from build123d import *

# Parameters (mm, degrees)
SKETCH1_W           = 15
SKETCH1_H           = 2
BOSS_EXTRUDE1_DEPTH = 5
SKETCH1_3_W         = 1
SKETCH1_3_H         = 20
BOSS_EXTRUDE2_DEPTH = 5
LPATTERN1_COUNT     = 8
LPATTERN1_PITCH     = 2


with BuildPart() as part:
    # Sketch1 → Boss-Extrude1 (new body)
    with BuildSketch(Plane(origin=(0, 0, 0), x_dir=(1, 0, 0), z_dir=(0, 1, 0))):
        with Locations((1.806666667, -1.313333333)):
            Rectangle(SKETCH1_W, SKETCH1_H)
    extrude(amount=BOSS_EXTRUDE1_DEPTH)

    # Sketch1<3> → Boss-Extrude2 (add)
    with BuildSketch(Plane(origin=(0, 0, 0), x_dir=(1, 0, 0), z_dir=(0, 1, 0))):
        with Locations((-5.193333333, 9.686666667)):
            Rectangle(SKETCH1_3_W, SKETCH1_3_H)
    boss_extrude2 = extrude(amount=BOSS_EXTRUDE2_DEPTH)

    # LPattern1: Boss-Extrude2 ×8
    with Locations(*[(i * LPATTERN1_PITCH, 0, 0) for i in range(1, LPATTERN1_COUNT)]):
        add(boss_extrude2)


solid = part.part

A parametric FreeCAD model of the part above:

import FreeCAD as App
import Part
import Sketcher

V = App.Vector

doc = App.newDocument("Part")
body = doc.addObject("PartDesign::Body", "Body")

sketch1 = body.newObject("Sketcher::SketchObject", "Sketch")
sketch1.AttachmentSupport = (doc.getObject("XZ_Plane"), [""])
sketch1.MapMode = "FlatFace"
sketch1.addGeometry(Part.LineSegment(V(-5.7, 0.3, 0), V(-5.7, 2.3, 0)), False)
sketch1.addGeometry(Part.LineSegment(V(-5.7, 2.3, 0), V(9.3, 2.3, 0)), False)
sketch1.addGeometry(Part.LineSegment(V(9.3, 2.3, 0), V(9.3, 0.3, 0)), False)
sketch1.addGeometry(Part.LineSegment(V(9.3, 0.3, 0), V(-5.7, 0.3, 0)), False)
sketch1.addConstraint(Sketcher.Constraint("Coincident", 0, 2, 1, 1))
sketch1.addConstraint(Sketcher.Constraint("Coincident", 1, 2, 2, 1))
sketch1.addConstraint(Sketcher.Constraint("Coincident", 2, 2, 3, 1))
sketch1.addConstraint(Sketcher.Constraint("Coincident", 3, 2, 0, 1))
sketch1.addConstraint(Sketcher.Constraint("Vertical", 0))
sketch1.addConstraint(Sketcher.Constraint("Horizontal", 1))
sketch1.addConstraint(Sketcher.Constraint("Vertical", 2))
sketch1.addConstraint(Sketcher.Constraint("Horizontal", 3))
sketch1.addConstraint(Sketcher.Constraint("DistanceX", 1, 1, 1, 2, 15.0))
sketch1.addConstraint(Sketcher.Constraint("DistanceY", 0, 1, 0, 2, 2.0))
sketch1.addConstraint(Sketcher.Constraint("DistanceX", 0, 2, -1, 1, 5.693333))
sketch1.addConstraint(Sketcher.Constraint("DistanceY", -1, 1, 0, 2, 2.313333))
pad1 = body.newObject("PartDesign::Pad", "Pad")
pad1.Profile = sketch1
pad1.Length = 5
pad1.Reversed = True

sketch2 = body.newObject("Sketcher::SketchObject", "Sketch001")
sketch2.AttachmentSupport = (doc.getObject("XZ_Plane"), [""])
sketch2.MapMode = "FlatFace"
sketch2.addGeometry(Part.LineSegment(V(-5.7, -19.7, 0), V(-5.7, 0.3, 0)), False)
sketch2.addGeometry(Part.LineSegment(V(-5.7, 0.3, 0), V(-4.7, 0.3, 0)), False)
sketch2.addGeometry(Part.LineSegment(V(-4.7, 0.3, 0), V(-4.7, -19.7, 0)), False)
sketch2.addGeometry(Part.LineSegment(V(-4.7, -19.7, 0), V(-5.7, -19.7, 0)), False)
sketch2.addConstraint(Sketcher.Constraint("Coincident", 0, 2, 1, 1))
sketch2.addConstraint(Sketcher.Constraint("Coincident", 1, 2, 2, 1))
sketch2.addConstraint(Sketcher.Constraint("Coincident", 2, 2, 3, 1))
sketch2.addConstraint(Sketcher.Constraint("Coincident", 3, 2, 0, 1))
sketch2.addConstraint(Sketcher.Constraint("Vertical", 0))
sketch2.addConstraint(Sketcher.Constraint("Horizontal", 1))
sketch2.addConstraint(Sketcher.Constraint("Vertical", 2))
sketch2.addConstraint(Sketcher.Constraint("Horizontal", 3))
sketch2.addConstraint(Sketcher.Constraint("DistanceX", 1, 1, 1, 2, 1.0))
sketch2.addConstraint(Sketcher.Constraint("DistanceY", 0, 1, 0, 2, 20.0))
sketch2.addConstraint(Sketcher.Constraint("DistanceX", 0, 2, -1, 1, 5.693333))
sketch2.addConstraint(Sketcher.Constraint("DistanceY", -1, 1, 0, 2, 0.313333))
pad2 = body.newObject("PartDesign::Pad", "Pad001")
pad2.Profile = sketch2
pad2.Length = 5
pad2.Reversed = True
doc.recompute()

linearpattern = body.newObject("PartDesign::LinearPattern", "LinearPattern")
linearpattern.Originals = [pad2]
linearpattern.Direction = (doc.getObject("X_Axis"), [""])
linearpattern.Mode = "offset"
linearpattern.Offset = 2
linearpattern.Occurrences = 8
body.Tip = linearpattern

doc.recompute()
